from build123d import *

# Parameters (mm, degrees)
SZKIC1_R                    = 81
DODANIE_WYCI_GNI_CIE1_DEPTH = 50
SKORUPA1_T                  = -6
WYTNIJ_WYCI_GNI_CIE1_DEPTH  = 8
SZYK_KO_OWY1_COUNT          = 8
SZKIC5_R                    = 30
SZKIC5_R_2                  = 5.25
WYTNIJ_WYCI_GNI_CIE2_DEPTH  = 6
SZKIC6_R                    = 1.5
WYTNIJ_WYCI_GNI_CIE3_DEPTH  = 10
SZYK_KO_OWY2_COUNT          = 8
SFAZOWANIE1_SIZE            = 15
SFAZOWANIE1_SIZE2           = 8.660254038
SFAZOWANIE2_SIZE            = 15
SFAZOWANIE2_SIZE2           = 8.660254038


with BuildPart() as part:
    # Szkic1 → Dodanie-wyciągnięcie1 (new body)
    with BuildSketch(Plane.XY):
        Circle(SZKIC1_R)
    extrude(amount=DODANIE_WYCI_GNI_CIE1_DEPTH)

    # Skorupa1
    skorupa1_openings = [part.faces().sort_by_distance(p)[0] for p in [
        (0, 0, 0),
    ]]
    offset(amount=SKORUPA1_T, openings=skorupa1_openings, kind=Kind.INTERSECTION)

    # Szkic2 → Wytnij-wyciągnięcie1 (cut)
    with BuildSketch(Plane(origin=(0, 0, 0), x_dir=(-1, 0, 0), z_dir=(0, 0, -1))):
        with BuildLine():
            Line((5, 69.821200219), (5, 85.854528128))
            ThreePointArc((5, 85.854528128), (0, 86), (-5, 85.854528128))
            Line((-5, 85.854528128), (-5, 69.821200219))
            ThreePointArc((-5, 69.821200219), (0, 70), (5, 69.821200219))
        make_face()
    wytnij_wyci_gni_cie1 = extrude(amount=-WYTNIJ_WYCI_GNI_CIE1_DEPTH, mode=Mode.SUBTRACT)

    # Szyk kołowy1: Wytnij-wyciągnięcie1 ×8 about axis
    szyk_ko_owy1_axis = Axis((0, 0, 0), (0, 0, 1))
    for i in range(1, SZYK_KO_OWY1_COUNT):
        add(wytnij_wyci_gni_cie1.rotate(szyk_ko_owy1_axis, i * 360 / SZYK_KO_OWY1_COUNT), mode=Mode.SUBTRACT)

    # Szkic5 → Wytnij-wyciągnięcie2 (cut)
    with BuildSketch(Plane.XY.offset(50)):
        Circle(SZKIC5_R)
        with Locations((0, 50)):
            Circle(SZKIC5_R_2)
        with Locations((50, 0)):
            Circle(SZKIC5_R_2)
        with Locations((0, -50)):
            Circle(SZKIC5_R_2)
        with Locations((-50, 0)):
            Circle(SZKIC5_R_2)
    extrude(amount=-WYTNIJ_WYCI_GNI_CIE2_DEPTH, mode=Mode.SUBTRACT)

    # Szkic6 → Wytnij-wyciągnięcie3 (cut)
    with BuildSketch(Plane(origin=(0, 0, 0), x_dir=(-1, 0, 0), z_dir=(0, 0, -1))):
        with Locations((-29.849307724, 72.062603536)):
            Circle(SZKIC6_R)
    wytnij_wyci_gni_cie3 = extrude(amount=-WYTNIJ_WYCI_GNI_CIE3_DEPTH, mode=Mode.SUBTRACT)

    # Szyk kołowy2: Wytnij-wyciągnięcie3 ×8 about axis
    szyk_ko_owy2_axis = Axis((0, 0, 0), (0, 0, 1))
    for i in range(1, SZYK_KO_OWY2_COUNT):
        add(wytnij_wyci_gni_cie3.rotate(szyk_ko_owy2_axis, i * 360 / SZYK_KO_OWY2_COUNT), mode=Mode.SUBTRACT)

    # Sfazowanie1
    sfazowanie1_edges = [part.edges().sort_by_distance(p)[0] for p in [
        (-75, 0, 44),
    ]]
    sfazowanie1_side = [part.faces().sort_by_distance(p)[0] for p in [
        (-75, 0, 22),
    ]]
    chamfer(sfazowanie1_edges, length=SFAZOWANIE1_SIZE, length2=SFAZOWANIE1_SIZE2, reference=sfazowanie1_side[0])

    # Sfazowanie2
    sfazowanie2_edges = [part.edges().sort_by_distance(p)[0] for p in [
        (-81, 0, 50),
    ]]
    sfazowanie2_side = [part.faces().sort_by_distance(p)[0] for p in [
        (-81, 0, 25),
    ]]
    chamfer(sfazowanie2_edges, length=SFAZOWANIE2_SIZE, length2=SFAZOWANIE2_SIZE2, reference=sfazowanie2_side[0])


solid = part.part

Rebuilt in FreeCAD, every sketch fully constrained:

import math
import FreeCAD as App
import Part
import Sketcher

V = App.Vector


def edges_at(feature, points):
    """Names of the edges that pass closest to the given points."""
    edges = feature.Shape.Edges
    near = lambda p: min(range(len(edges)), key=lambda i: edges[i].distToShape(Part.Vertex(*p))[0])
    return sorted({f"Edge{near(p) + 1}" for p in points})


def faces_at(feature, points):
    """Names of the faces that lie closest to the given points."""
    faces = feature.Shape.Faces
    near = lambda p: min(range(len(faces)), key=lambda i: faces[i].distToShape(Part.Vertex(*p))[0])
    return sorted({f"Face{near(p) + 1}" for p in points})

doc = App.newDocument("Part")
body = doc.addObject("PartDesign::Body", "Body")

# Sketch on XY plane
sketch1 = body.newObject("Sketcher::SketchObject", "Sketch")
sketch1.AttachmentSupport = (doc.getObject("XY_Plane"), [""])
sketch1.MapMode = "FlatFace"
sketch1.addGeometry(Part.Circle(V(0, 0, 0), V(0, 0, 1), 81), False)
sketch1.addConstraint(Sketcher.Constraint("Coincident", 0, 3, -1, 1))
sketch1.addConstraint(Sketcher.Constraint("Diameter", 0, 162.0))
pad1 = body.newObject("PartDesign::Pad", "Pad")
pad1.Profile = sketch1
pad1.Length = 50
doc.recompute()

thickness = body.newObject("PartDesign::Thickness", "Thickness")
thickness.Base = (pad1, faces_at(pad1, [(0, 0, 0)]))
thickness.Value = 6
thickness.Reversed = True
thickness.Join = "Intersection"

# Sketch on XY plane
sketch2 = body.newObject("Sketcher::SketchObject", "Sketch001")
sketch2.AttachmentSupport = (doc.getObject("XY_Plane"), [""])
sketch2.MapMode = "FlatFace"
sketch2.addGeometry(Part.LineSegment(V(-5, 70, 0), V(-5, 86, 0)), False)
sketch2.addGeometry(Part.ArcOfCircle(Part.Circle(V(0, 0, 0), V(0, 0, 1), 86), math.radians(86.67), math.radians(93.33)), False)
sketch2.addGeometry(Part.LineSegment(V(5, 86, 0), V(5, 70, 0)), False)
sketch2.addGeometry(Part.ArcOfCircle(Part.Circle(V(0, 0, 0), V(0, 0, 1), 70), math.radians(85.9), math.radians(94.1)), False)
sketch2.addConstraint(Sketcher.Constraint("Coincident", 0, 2, 1, 2))
sketch2.addConstraint(Sketcher.Constraint("Coincident", 1, 1, 2, 1))
sketch2.addConstraint(Sketcher.Constraint("Coincident", 2, 2, 3, 1))
sketch2.addConstraint(Sketcher.Constraint("Coincident", 3, 2, 0, 1))
sketch2.addConstraint(Sketcher.Constraint("Vertical", 0))
sketch2.addConstraint(Sketcher.Constraint("Vertical", 2))
sketch2.addConstraint(Sketcher.Constraint("Coincident", 1, 3, -1, 1))
sketch2.addConstraint(Sketcher.Constraint("Coincident", 3, 3, -1, 1))
sketch2.addConstraint(Sketcher.Constraint("Horizontal", 0, 2, 1, 1))
sketch2.addConstraint(Sketcher.Constraint("Radius", 1, 86.0))
sketch2.addConstraint(Sketcher.Constraint("Radius", 3, 70.0))
sketch2.addConstraint(Sketcher.Constraint("DistanceX", 0, 2, -1, 1, 5.0))
pocket1 = body.newObject("PartDesign::Pocket", "Pocket")
pocket1.Profile = sketch2
pocket1.Length = 8
pocket1.Reversed = True
doc.recompute()

polarpattern = body.newObject("PartDesign::PolarPattern", "PolarPattern")
polarpattern.Originals = [pocket1]
polarpattern.Axis = (doc.getObject("Z_Axis"), [""])
polarpattern.Angle = 360
polarpattern.Occurrences = 8
body.Tip = polarpattern

# Sketch on XY plane
sketch3 = body.newObject("Sketcher::SketchObject", "Sketch002")
sketch3.AttachmentSupport = (doc.getObject("XY_Plane"), [""])
sketch3.MapMode = "FlatFace"
sketch3.AttachmentOffset = App.Placement(V(0, 0, 50), App.Rotation())
sketch3.addGeometry(Part.Circle(V(0, 0, 0), V(0, 0, 1), 30), False)
sketch3.addGeometry(Part.Circle(V(0, 50, 0), V(0, 0, 1), 5), False)
sketch3.addGeometry(Part.Circle(V(50, 0, 0), V(0, 0, 1), 5), False)
sketch3.addGeometry(Part.Circle(V(0, -50, 0), V(0, 0, 1), 5), False)
sketch3.addGeometry(Part.Circle(V(-50, 0, 0), V(0, 0, 1), 5), False)
sketch3.addConstraint(Sketcher.Constraint("Coincident", 0, 3, -1, 1))
sketch3.addConstraint(Sketcher.Constraint("Equal", 1, 2))
sketch3.addConstraint(Sketcher.Constraint("Equal", 2, 3))
sketch3.addConstraint(Sketcher.Constraint("Equal", 3, 4))
sketch3.addConstraint(Sketcher.Constraint("Symmetric", 1, 3, 3, 3, -1, 1))
sketch3.addConstraint(Sketcher.Constraint("Symmetric", 2, 3, 4, 3, -1, 1))
sketch3.addConstraint(Sketcher.Constraint("PointOnObject", 1, 3, -2))
sketch3.addConstraint(Sketcher.Constraint("PointOnObject", 2, 3, -1))
sketch3.addConstraint(Sketcher.Constraint("Diameter", 0, 60.0))
sketch3.addConstraint(Sketcher.Constraint("Diameter", 1, 10.5))
sketch3.addConstraint(Sketcher.Constraint("DistanceY", -1, 1, 1, 3, 50.0))
sketch3.addConstraint(Sketcher.Constraint("DistanceX", -1, 1, 2, 3, 50.0))
pocket2 = body.newObject("PartDesign::Pocket", "Pocket001")
pocket2.Profile = sketch3
pocket2.Length = 6

# Sketch on XY plane
sketch4 = body.newObject("Sketcher::SketchObject", "Sketch003")
sketch4.AttachmentSupport = (doc.getObject("XY_Plane"), [""])
sketch4.MapMode = "FlatFace"
sketch4.addGeometry(Part.Circle(V(29.8, 72.1, 0), V(0, 0, 1), 1.5), False)
sketch4.addConstraint(Sketcher.Constraint("Diameter", 0, 3.0))
sketch4.addConstraint(Sketcher.Constraint("DistanceX", -1, 1, 0, 3, 29.849308))
sketch4.addConstraint(Sketcher.Constraint("DistanceY", -1, 1, 0, 3, 72.062604))
pocket3 = body.newObject("PartDesign::Pocket", "Pocket002")
pocket3.Profile = sketch4
pocket3.Length = 10
pocket3.Reversed = True
doc.recompute()

polarpattern2 = body.newObject("PartDesign::PolarPattern", "PolarPattern001")
polarpattern2.Originals = [pocket3]
polarpattern2.Axis = (doc.getObject("Z_Axis"), [""])
polarpattern2.Angle = 360
polarpattern2.Occurrences = 8
body.Tip = polarpattern2
doc.recompute()

chamfer = body.newObject("PartDesign::Chamfer", "Chamfer")
chamfer.Base = (polarpattern2, edges_at(polarpattern2, [(-75, 0, 44)]))
chamfer.ChamferType = "Two distances"
chamfer.Size = 15
chamfer.Size2 = 8.660254
doc.recompute()

chamfer2 = body.newObject("PartDesign::Chamfer", "Chamfer001")
chamfer2.Base = (chamfer, edges_at(chamfer, [(-81, 0, 50)]))
chamfer2.ChamferType = "Two distances"
chamfer2.Size = 15
chamfer2.Size2 = 8.660254

doc.recompute()
